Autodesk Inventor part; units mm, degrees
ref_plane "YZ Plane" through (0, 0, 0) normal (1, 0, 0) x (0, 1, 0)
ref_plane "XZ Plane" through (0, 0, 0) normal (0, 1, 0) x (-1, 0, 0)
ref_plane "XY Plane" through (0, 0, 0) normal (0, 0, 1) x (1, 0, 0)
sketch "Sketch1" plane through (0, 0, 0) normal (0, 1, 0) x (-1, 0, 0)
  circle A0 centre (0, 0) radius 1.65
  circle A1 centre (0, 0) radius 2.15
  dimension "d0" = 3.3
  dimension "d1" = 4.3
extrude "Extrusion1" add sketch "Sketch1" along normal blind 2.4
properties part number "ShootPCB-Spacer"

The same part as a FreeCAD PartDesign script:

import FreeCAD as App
import Part
import Sketcher

V = App.Vector

doc = App.newDocument("Part")
params = doc.addObject("Spreadsheet::Sheet", "Params")
for row, (alias, value) in enumerate([
    ("sketch1_diameter", "4.3 mm"),
    ("sketch1_diameter2", "3.3 mm"),
    ("pad1_length", "2.4 mm"),
], start=1):
    params.set(f"A{row}", alias)
    params.set(f"B{row}", "=" + value)
    params.setAlias(f"B{row}", alias)

body = doc.addObject("PartDesign::Body", "Body")

sketch1 = body.newObject("Sketcher::SketchObject", "Sketch")
sketch1.AttachmentSupport = (doc.getObject("XZ_Plane"), [""])
sketch1.MapMode = "FlatFace"
sketch1.addGeometry([
    Part.Circle(V(0, 0, 0), V(0, 0, 1), 2.1),
    Part.Circle(V(0, 0, 0), V(0, 0, 1), 1.6),
], False)
sketch1.addConstraint([
    Sketcher.Constraint("Coincident", 0, 3, -1, 1),
    Sketcher.Constraint("Coincident", 1, 3, -1, 1),
    Sketcher.Constraint("Diameter", 0, 4.3),
    Sketcher.Constraint("Diameter", 1, 3.3),
])
sketch1.setExpression("Constraints[2]", "Params.sketch1_diameter")
sketch1.setExpression("Constraints[3]", "Params.sketch1_diameter2")
pad1 = body.newObject("PartDesign::Pad", "Pad")
pad1.Profile = sketch1
pad1.setExpression("Length", "Params.pad1_length")
pad1.Reversed = True

doc.recompute()
